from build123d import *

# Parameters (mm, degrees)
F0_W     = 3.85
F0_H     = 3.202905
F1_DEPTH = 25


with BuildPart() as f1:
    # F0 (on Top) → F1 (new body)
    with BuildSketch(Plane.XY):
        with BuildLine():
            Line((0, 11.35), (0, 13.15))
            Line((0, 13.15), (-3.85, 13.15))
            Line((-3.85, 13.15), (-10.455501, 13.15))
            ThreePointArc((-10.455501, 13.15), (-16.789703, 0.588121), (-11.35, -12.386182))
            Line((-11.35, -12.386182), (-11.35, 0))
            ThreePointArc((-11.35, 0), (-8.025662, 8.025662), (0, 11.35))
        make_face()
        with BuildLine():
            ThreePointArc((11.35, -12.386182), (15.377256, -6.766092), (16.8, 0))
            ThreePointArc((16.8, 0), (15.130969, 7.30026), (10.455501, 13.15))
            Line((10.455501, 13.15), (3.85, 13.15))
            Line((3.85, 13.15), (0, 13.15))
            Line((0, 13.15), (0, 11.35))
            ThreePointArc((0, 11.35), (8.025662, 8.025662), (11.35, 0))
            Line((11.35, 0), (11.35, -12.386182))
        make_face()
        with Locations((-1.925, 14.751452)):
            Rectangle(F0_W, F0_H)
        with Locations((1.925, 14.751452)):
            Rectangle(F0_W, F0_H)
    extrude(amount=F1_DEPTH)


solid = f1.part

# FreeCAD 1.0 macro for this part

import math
import FreeCAD as App
import Part
import Sketcher
from FreeCAD import Vector

doc = App.newDocument("Part")
body = doc.addObject("PartDesign::Body", "Body")

# Sketch on XY plane
sketch1 = doc.addObject("Sketcher::SketchObject", "Sketch")
body.addObject(sketch1)
sketch1.AttachmentSupport = (doc.XY_Plane, [""])
sketch1.MapMode = "FlatFace"
sketch1.addGeometry([
    Part.LineSegment(Vector(-3.85, 13.15, 0), Vector(-10.455501, 13.15, 0)),  # 0
    Part.ArcOfCircle(Part.Circle(Vector(-0.000001, 0, 0), Vector(0, 0, 1), 16.8), math.radians(128.488037), math.radians(227.499612)),  # 1
    Part.LineSegment(Vector(-11.35, -12.386182, 0), Vector(-11.35, 0, 0)),  # 2
    Part.ArcOfCircle(Part.Circle(Vector(0, 0, 0), Vector(0, 0, 1), 11.35), math.radians(89.999999), math.radians(180.000001)),  # 3
    Part.ArcOfCircle(Part.Circle(Vector(0, 0, 0), Vector(0, 0, 1), 11.35), math.radians(-0.000001), math.radians(90.000001)),  # 4
    Part.LineSegment(Vector(11.35, 0, 0), Vector(11.35, -12.386182, 0)),  # 5
    Part.ArcOfCircle(Part.Circle(Vector(0, 0, 0), Vector(0, 0, 1), 16.8), math.radians(-47.499609), math.radians(0.000001)),  # 6
    Part.ArcOfCircle(Part.Circle(Vector(0.000005, 0.000002, 0), Vector(0, 0, 1), 16.799995), math.radians(-0.000008), math.radians(51.511969)),  # 7
    Part.LineSegment(Vector(10.455501, 13.15, 0), Vector(3.85, 13.15, 0)),  # 8
    Part.LineSegment(Vector(3.85, 13.15, 0), Vector(0, 13.15, 0)),  # 9
    Part.LineSegment(Vector(0, 13.15, 0), Vector(0, 16.352905, 0)),  # 10
    Part.LineSegment(Vector(0, 16.352905, 0), Vector(-3.85, 16.352905, 0)),  # 11
    Part.LineSegment(Vector(-3.85, 16.352905, 0), Vector(-3.85, 13.15, 0)),  # 12
    Part.LineSegment(Vector(0, 13.149999, 0), Vector(0, 13.15, 0)),  # 13
    Part.LineSegment(Vector(0, 13.149999, 0), Vector(3.85, 13.149999, 0)),  # 14
    Part.LineSegment(Vector(3.85, 13.15, 0), Vector(3.85, 13.149999, 0)),  # 15
    Part.LineSegment(Vector(3.85, 13.15, 0), Vector(0, 13.15, 0)),  # 16
    Part.LineSegment(Vector(0, 16.352905, 0), Vector(0, 13.15, 0)),  # 17
    Part.LineSegment(Vector(0, 13.15, 0), Vector(3.85, 13.15, 0)),  # 18
    Part.LineSegment(Vector(3.85, 13.15, 0), Vector(3.85, 16.352905, 0)),  # 19
    Part.LineSegment(Vector(3.85, 16.352905, 0), Vector(0, 16.352905, 0)),  # 20
], False)
sketch1.addConstraint([
    Sketcher.Constraint("Coincident", 0, 2, 1, 1),
    Sketcher.Constraint("Coincident", 1, 2, 2, 1),
    Sketcher.Constraint("Tangent", 2, 2, 3, 2),
    Sketcher.Constraint("Tangent", 3, 1, 4, 2),
    Sketcher.Constraint("Tangent", 4, 1, 5, 1),
    Sketcher.Constraint("Coincident", 5, 2, 6, 1),
    Sketcher.Constraint("Tangent", 6, 2, 7, 1),
    Sketcher.Constraint("Coincident", 7, 2, 8, 1),
    Sketcher.Constraint("Coincident", 8, 2, 9, 1),
    Sketcher.Constraint("Coincident", 9, 2, 10, 1),
    Sketcher.Constraint("Coincident", 10, 2, 11, 1),
    Sketcher.Constraint("Coincident", 11, 2, 12, 1),
    Sketcher.Constraint("Coincident", 12, 2, 0, 1),
    Sketcher.Constraint("Coincident", 13, 1, 14, 1),
    Sketcher.Constraint("Coincident", 14, 2, 15, 1),
    Sketcher.Constraint("Coincident", 15, 2, 16, 1),
    Sketcher.Constraint("Coincident", 16, 2, 13, 2),
    Sketcher.Constraint("Coincident", 17, 2, 18, 1),
    Sketcher.Constraint("Coincident", 18, 2, 19, 1),
    Sketcher.Constraint("Coincident", 19, 2, 20, 1),
    Sketcher.Constraint("Coincident", 20, 2, 17, 1),
    Sketcher.Constraint("Horizontal", 0),
    Sketcher.Constraint("Vertical", 2),
    Sketcher.Constraint("Vertical", 5),
    Sketcher.Constraint("Horizontal", 8),
    Sketcher.Constraint("Horizontal", 9),
    Sketcher.Constraint("Vertical", 10),
    Sketcher.Constraint("Horizontal", 11),
    Sketcher.Constraint("Vertical", 12),
    Sketcher.Constraint("Horizontal", 13),
    Sketcher.Constraint("Horizontal", 14),
    Sketcher.Constraint("Horizontal", 15),
    Sketcher.Constraint("Vertical", 17),
    Sketcher.Constraint("Horizontal", 18),
    Sketcher.Constraint("Vertical", 19),
    Sketcher.Constraint("Horizontal", 20),
    Sketcher.Constraint("Coincident", 1, 3, -1, 1),
    Sketcher.Constraint("Coincident", 3, 3, -1, 1),
    Sketcher.Constraint("Coincident", 6, 3, -1, 1),
    Sketcher.Constraint("Coincident", 13, 1, 9, 2),
    Sketcher.Constraint("Coincident", 17, 2, 9, 2),
    Sketcher.Constraint("Equal", 3, 4),
    Sketcher.Constraint("Equal", 1, 6),
    Sketcher.Constraint("Symmetric", 0, 2, 7, 2, -2),
    Sketcher.Constraint("Symmetric", 11, 2, 19, 2, -2),
    Sketcher.Constraint("PointOnObject", 3, 1, -2),
    Sketcher.Constraint("PointOnObject", 6, 2, -1),
    Sketcher.Constraint("PointOnObject", 9, 2, -2),
    Sketcher.Constraint("PointOnObject", 16, 2, -2),
    Sketcher.Constraint("Equal", 0, 8),
    Sketcher.Constraint("Equal", 11, 14),
    Sketcher.Constraint("Equal", 14, 16),
    Sketcher.Constraint("Radius", 1, 16.8),
    Sketcher.Constraint("Radius", 3, 11.35),
    Sketcher.Constraint("DistanceX", 9, 2, 9, 1, 3.85),
    Sketcher.Constraint("DistanceY", 3, 1, 0, 2, 1.8),
    Sketcher.Constraint("DistanceY", 10, 1, 10, 2, 3.202905),
])
pad1 = doc.addObject("PartDesign::Pad", "Pad")
body.addObject(pad1)
pad1.Profile = sketch1
pad1.Length = 25

doc.recompute()
